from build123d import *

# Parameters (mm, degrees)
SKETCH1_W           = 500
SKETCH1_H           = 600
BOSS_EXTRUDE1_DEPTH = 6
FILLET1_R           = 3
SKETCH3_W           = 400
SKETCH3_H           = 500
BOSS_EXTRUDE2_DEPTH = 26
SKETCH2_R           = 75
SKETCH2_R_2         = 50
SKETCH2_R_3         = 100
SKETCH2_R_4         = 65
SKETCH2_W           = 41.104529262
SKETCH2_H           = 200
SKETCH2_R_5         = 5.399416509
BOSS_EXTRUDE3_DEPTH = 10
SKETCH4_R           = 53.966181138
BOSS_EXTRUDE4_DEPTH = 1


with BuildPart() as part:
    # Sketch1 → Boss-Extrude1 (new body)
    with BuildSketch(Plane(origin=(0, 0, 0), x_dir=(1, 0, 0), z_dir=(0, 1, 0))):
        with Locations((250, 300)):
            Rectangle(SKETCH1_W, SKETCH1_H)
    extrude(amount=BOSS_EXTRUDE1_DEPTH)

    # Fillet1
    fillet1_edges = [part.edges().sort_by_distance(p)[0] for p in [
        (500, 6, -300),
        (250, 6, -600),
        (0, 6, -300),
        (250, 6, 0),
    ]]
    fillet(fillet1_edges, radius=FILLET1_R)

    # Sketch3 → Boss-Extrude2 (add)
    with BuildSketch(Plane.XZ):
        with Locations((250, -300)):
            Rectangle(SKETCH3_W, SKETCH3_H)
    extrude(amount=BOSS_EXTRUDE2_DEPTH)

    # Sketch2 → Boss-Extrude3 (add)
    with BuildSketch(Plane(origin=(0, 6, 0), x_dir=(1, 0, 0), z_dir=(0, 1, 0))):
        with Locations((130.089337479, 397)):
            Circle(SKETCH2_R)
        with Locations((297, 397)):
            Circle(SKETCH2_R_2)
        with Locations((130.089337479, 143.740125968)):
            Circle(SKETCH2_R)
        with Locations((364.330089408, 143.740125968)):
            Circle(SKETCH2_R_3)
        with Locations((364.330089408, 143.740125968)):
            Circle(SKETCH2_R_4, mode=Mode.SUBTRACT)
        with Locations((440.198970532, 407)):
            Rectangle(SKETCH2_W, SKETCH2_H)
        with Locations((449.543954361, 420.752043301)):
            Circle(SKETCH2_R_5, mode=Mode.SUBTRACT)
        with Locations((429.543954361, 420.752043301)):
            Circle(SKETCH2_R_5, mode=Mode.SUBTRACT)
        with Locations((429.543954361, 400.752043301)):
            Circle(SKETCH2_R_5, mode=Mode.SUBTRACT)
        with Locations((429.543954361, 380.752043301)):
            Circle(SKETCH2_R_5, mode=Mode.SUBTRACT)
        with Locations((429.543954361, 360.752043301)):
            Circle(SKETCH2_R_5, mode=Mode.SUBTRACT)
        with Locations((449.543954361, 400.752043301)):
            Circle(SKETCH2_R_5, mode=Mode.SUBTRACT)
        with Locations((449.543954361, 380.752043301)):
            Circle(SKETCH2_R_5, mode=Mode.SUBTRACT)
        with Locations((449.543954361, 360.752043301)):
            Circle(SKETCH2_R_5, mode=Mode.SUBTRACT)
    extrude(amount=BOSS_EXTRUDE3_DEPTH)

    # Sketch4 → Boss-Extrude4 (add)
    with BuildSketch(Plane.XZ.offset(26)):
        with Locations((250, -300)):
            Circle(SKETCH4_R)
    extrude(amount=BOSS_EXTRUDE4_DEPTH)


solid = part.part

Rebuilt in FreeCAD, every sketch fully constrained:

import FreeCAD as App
import Part
import Sketcher
from FreeCAD import Vector


def edges_at(feature, points):
    """Names of the edges that pass closest to the given points."""
    edges = feature.Shape.Edges
    near = lambda p: min(range(len(edges)), key=lambda i: edges[i].distToShape(Part.Vertex(*p))[0])
    return sorted({f"Edge{near(p) + 1}" for p in points})

doc = App.newDocument("Part")
body = doc.addObject("PartDesign::Body", "Body")

# Sketch on XZ plane
sketch1 = body.newObject("Sketcher::SketchObject", "Sketch")
sketch1.AttachmentSupport = (doc.getObject("XZ_Plane"), [""])
sketch1.MapMode = "FlatFace"
sketch1.addGeometry([
    Part.LineSegment(Vector(0, -600, 0), Vector(0, 0, 0)),
    Part.LineSegment(Vector(0, 0, 0), Vector(500, 0, 0)),
    Part.LineSegment(Vector(500, 0, 0), Vector(500, -600, 0)),
    Part.LineSegment(Vector(500, -600, 0), Vector(0, -600, 0)),
], False)
sketch1.addConstraint([
    Sketcher.Constraint("Coincident", 0, 2, 1, 1),
    Sketcher.Constraint("Coincident", 1, 2, 2, 1),
    Sketcher.Constraint("Coincident", 2, 2, 3, 1),
    Sketcher.Constraint("Coincident", 3, 2, 0, 1),
    Sketcher.Constraint("Vertical", 0),
    Sketcher.Constraint("Horizontal", 1),
    Sketcher.Constraint("Vertical", 2),
    Sketcher.Constraint("Horizontal", 3),
    Sketcher.Constraint("Coincident", 0, 2, -1, 1),
    Sketcher.Constraint("DistanceX", 1, 1, 1, 2, 500.0),
    Sketcher.Constraint("DistanceY", 0, 1, 0, 2, 600.0),
])
pad1 = body.newObject("PartDesign::Pad", "Pad")
pad1.Profile = sketch1
pad1.Length = 6
pad1.Reversed = True
doc.recompute()

fillet = body.newObject("PartDesign::Fillet", "Fillet")
fillet.Base = (pad1, edges_at(pad1, [
    (500, 6, -300),
    (250, 6, -600),
    (0, 6, -300),
    (250, 6, 0),
]))
fillet.Radius = 3

# Sketch on XZ plane
sketch2 = body.newObject("Sketcher::SketchObject", "Sketch001")
sketch2.AttachmentSupport = (doc.getObject("XZ_Plane"), [""])
sketch2.MapMode = "FlatFace"
sketch2.addGeometry([
    Part.LineSegment(Vector(50, -50, 0), Vector(50, -550, 0)),
    Part.LineSegment(Vector(50, -550, 0), Vector(450, -550, 0)),
    Part.LineSegment(Vector(450, -550, 0), Vector(450, -50, 0)),
    Part.LineSegment(Vector(450, -50, 0), Vector(50, -50, 0)),
], False)
sketch2.addConstraint([
    Sketcher.Constraint("Coincident", 0, 2, 1, 1),
    Sketcher.Constraint("Coincident", 1, 2, 2, 1),
    Sketcher.Constraint("Coincident", 2, 2, 3, 1),
    Sketcher.Constraint("Coincident", 3, 2, 0, 1),
    Sketcher.Constraint("Vertical", 0),
    Sketcher.Constraint("Horizontal", 1),
    Sketcher.Constraint("Vertical", 2),
    Sketcher.Constraint("Horizontal", 3),
    Sketcher.Constraint("DistanceX", 1, 1, 1, 2, 400.0),
    Sketcher.Constraint("DistanceY", 0, 2, 0, 1, 500.0),
    Sketcher.Constraint("DistanceX", -1, 1, 0, 2, 50.0),
    Sketcher.Constraint("DistanceY", 0, 2, -1, 1, 550.0),
])
pad2 = body.newObject("PartDesign::Pad", "Pad001")
pad2.Profile = sketch2
pad2.Length = 26

# Sketch on XZ plane
sketch3 = body.newObject("Sketcher::SketchObject", "Sketch002")
sketch3.AttachmentSupport = (doc.getObject("XZ_Plane"), [""])
sketch3.MapMode = "FlatFace"
sketch3.AttachmentOffset = App.Placement(Vector(0, 0, -6), App.Rotation())
sketch3.addGeometry([
    Part.Circle(Vector(130.089337, -397, 0), Vector(0, 0, 1), 75),  # 0
    Part.Circle(Vector(297, -397, 0), Vector(0, 0, 1), 50),  # 1
    Part.Circle(Vector(130.089337, -143.740126, 0), Vector(0, 0, 1), 75),  # 2
    Part.Circle(Vector(364.330089, -143.740126, 0), Vector(0, 0, 1), 100),  # 3
    Part.Circle(Vector(364.330089, -143.740126, 0), Vector(0, 0, 1), 65),  # 4
    Part.LineSegment(Vector(419.646706, -507, 0), Vector(419.646706, -307, 0)),  # 5
    Part.LineSegment(Vector(419.646706, -307, 0), Vector(460.751235, -307, 0)),  # 6
    Part.LineSegment(Vector(460.751235, -307, 0), Vector(460.751235, -507, 0)),  # 7
    Part.LineSegment(Vector(460.751235, -507, 0), Vector(419.646706, -507, 0)),  # 8
    Part.Circle(Vector(429.543954, -360.752043, 0), Vector(0, 0, 1), 5.399417),  # 9
    Part.Circle(Vector(429.543954, -380.752043, 0), Vector(0, 0, 1), 5.399417),  # 10
    Part.Circle(Vector(449.543954, -360.752043, 0), Vector(0, 0, 1), 5.399417),  # 11
    Part.Circle(Vector(449.543954, -380.752043, 0), Vector(0, 0, 1), 5.399417),  # 12
    Part.Circle(Vector(429.543954, -400.752043, 0), Vector(0, 0, 1), 5.399417),  # 13
    Part.Circle(Vector(429.543954, -420.752043, 0), Vector(0, 0, 1), 5.399417),  # 14
    Part.Circle(Vector(449.543954, -400.752043, 0), Vector(0, 0, 1), 5.399417),  # 15
    Part.Circle(Vector(449.543954, -420.752043, 0), Vector(0, 0, 1), 5.399417),  # 16
], False)
sketch3.addConstraint([
    Sketcher.Constraint("Coincident", 5, 2, 6, 1),
    Sketcher.Constraint("Coincident", 6, 2, 7, 1),
    Sketcher.Constraint("Coincident", 7, 2, 8, 1),
    Sketcher.Constraint("Coincident", 8, 2, 5, 1),
    Sketcher.Constraint("Vertical", 5),
    Sketcher.Constraint("Horizontal", 6),
    Sketcher.Constraint("Vertical", 7),
    Sketcher.Constraint("Horizontal", 8),
    Sketcher.Constraint("Coincident", 4, 3, 3, 3),
    Sketcher.Constraint("Equal", 0, 2),
    Sketcher.Constraint("Equal", 9, 10),
    Sketcher.Constraint("Equal", 10, 11),
    Sketcher.Constraint("Equal", 11, 12),
    Sketcher.Constraint("Equal", 12, 13),
    Sketcher.Constraint("Equal", 13, 14),
    Sketcher.Constraint("Equal", 14, 15),
    Sketcher.Constraint("Equal", 15, 16),
    Sketcher.Constraint("Horizontal", 0, 3, 1, 3),
    Sketcher.Constraint("Horizontal", 2, 3, 3, 3),
    Sketcher.Constraint("Horizontal", 9, 3, 11, 3),
    Sketcher.Constraint("Horizontal", 10, 3, 12, 3),
    Sketcher.Constraint("Horizontal", 13, 3, 15, 3),
    Sketcher.Constraint("Horizontal", 14, 3, 16, 3),
    Sketcher.Constraint("Vertical", 0, 3, 2, 3),
    Sketcher.Constraint("Vertical", 9, 3, 10, 3),
    Sketcher.Constraint("Vertical", 11, 3, 12, 3),
    Sketcher.Constraint("Vertical", 10, 3, 13, 3),
    Sketcher.Constraint("Vertical", 13, 3, 14, 3),
    Sketcher.Constraint("Vertical", 12, 3, 15, 3),
    Sketcher.Constraint("Vertical", 15, 3, 16, 3),
    Sketcher.Constraint("Diameter", 0, 150.0),
    Sketcher.Constraint("Diameter", 1, 100.0),
    Sketcher.Constraint("Diameter", 3, 200.0),
    Sketcher.Constraint("Diameter", 4, 130.0),
    Sketcher.Constraint("DistanceY", 5, 1, 5, 2, 200.0),
    Sketcher.Constraint("DistanceY", 0, 3, -1, 1, 397.0),
    Sketcher.Constraint("DistanceX", -1, 1, 1, 3, 297.0),
    Sketcher.Constraint("DistanceY", 5, 2, -1, 1, 307.0),
    Sketcher.Constraint("DistanceY", 10, 3, 9, 3, 20.0),
    Sketcher.Constraint("DistanceX", 9, 3, 11, 3, 20.0),
    Sketcher.Constraint("DistanceY", 13, 3, 10, 3, 20.0),
    Sketcher.Constraint("DistanceY", 14, 3, 13, 3, 20.0),
    Sketcher.Constraint("Diameter", 9, 10.798833),
    Sketcher.Constraint("DistanceX", 6, 1, 6, 2, 41.104529),
    Sketcher.Constraint("DistanceX", -1, 1, 3, 3, 364.330089),
    Sketcher.Constraint("DistanceX", 2, 3, 3, 3, 234.240752),
    Sketcher.Constraint("DistanceX", 5, 2, 9, 3, 9.897248),
    Sketcher.Constraint("DistanceY", 2, 3, -1, 1, 143.740126),
    Sketcher.Constraint("DistanceX", -1, 1, 9, 3, 429.543954),
    Sketcher.Constraint("DistanceY", 9, 3, -1, 1, 360.752043),
])
pad3 = body.newObject("PartDesign::Pad", "Pad002")
pad3.Profile = sketch3
pad3.Length = 10
pad3.Reversed = True

# Sketch on XZ plane
sketch4 = body.newObject("Sketcher::SketchObject", "Sketch003")
sketch4.AttachmentSupport = (doc.getObject("XZ_Plane"), [""])
sketch4.MapMode = "FlatFace"
sketch4.AttachmentOffset = App.Placement(Vector(0, 0, 26), App.Rotation())
sketch4.addGeometry(Part.Circle(Vector(250, -300, 0), Vector(0, 0, 1), 53.966181), False)
sketch4.addConstraint([
    Sketcher.Constraint("DistanceX", -1, 1, 0, 3, 250.0),
    Sketcher.Constraint("DistanceY", 0, 3, -1, 1, 300.0),
    Sketcher.Constraint("Diameter", 0, 107.932362),
])
pad4 = body.newObject("PartDesign::Pad", "Pad003")
pad4.Profile = sketch4
pad4.Length = 1

doc.recompute()
